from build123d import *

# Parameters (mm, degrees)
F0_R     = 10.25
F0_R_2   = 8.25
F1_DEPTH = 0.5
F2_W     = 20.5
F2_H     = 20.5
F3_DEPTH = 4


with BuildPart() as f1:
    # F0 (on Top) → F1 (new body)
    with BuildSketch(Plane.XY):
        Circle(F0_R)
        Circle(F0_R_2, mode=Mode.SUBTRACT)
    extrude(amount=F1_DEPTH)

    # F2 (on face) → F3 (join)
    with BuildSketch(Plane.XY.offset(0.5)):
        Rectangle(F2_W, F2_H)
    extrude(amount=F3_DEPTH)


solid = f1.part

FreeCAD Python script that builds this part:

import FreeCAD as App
import Part
import Sketcher
from FreeCAD import Vector
Q = App.Units.Quantity

doc = App.newDocument("Part")
body = doc.addObject("PartDesign::Body", "Body")

sketch1 = doc.addObject("Sketcher::SketchObject", "Sketch")
body.addObject(sketch1)
sketch1.AttachmentSupport = (doc.XY_Plane, [""])
sketch1.MapMode = "FlatFace"
sketch1.addGeometry([
    Part.Circle(Vector(0, 0, 0), Vector(0, 0, 1), 10),
    Part.Circle(Vector(0, 0, 0), Vector(0, 0, 1), 8),
], False)
sketch1.addConstraint([
    Sketcher.Constraint("Coincident", 0, 3, -1, 1),
    Sketcher.Constraint("Coincident", 1, 3, -1, 1),
    Sketcher.Constraint("Diameter", 0, Q("20.5 mm")),
    Sketcher.Constraint("Diameter", 1, Q("16.5 mm")),
])
pad1 = doc.addObject("PartDesign::Pad", "Pad")
body.addObject(pad1)
pad1.Profile = sketch1
pad1.Length = 0.5

sketch2 = doc.addObject("Sketcher::SketchObject", "Sketch001")
body.addObject(sketch2)
sketch2.AttachmentSupport = (doc.XY_Plane, [""])
sketch2.MapMode = "FlatFace"
sketch2.AttachmentOffset = App.Placement(Vector(0, 0, 0.5), App.Rotation())
sketch2.addGeometry([
    Part.LineSegment(Vector(-10, 10, 0), Vector(-10, -10, 0)),
    Part.LineSegment(Vector(-10, -10, 0), Vector(10, -10, 0)),
    Part.LineSegment(Vector(10, -10, 0), Vector(10, 10, 0)),
    Part.LineSegment(Vector(10, 10, 0), Vector(-10, 10, 0)),
], False)
sketch2.addConstraint([
    Sketcher.Constraint("Coincident", 0, 2, 1, 1),
    Sketcher.Constraint("Coincident", 1, 2, 2, 1),
    Sketcher.Constraint("Coincident", 2, 2, 3, 1),
    Sketcher.Constraint("Coincident", 3, 2, 0, 1),
    Sketcher.Constraint("Vertical", 0),
    Sketcher.Constraint("Horizontal", 1),
    Sketcher.Constraint("Vertical", 2),
    Sketcher.Constraint("Horizontal", 3),
    Sketcher.Constraint("Symmetric", 0, 2, 2, 2, -1, 1),
    Sketcher.Constraint("Equal", 3, 0),
    Sketcher.Constraint("DistanceX", 1, 1, 1, 2, Q("20.5 mm")),
])
pad2 = doc.addObject("PartDesign::Pad", "Pad001")
body.addObject(pad2)
pad2.Profile = sketch2
pad2.Length = 4

doc.recompute()
